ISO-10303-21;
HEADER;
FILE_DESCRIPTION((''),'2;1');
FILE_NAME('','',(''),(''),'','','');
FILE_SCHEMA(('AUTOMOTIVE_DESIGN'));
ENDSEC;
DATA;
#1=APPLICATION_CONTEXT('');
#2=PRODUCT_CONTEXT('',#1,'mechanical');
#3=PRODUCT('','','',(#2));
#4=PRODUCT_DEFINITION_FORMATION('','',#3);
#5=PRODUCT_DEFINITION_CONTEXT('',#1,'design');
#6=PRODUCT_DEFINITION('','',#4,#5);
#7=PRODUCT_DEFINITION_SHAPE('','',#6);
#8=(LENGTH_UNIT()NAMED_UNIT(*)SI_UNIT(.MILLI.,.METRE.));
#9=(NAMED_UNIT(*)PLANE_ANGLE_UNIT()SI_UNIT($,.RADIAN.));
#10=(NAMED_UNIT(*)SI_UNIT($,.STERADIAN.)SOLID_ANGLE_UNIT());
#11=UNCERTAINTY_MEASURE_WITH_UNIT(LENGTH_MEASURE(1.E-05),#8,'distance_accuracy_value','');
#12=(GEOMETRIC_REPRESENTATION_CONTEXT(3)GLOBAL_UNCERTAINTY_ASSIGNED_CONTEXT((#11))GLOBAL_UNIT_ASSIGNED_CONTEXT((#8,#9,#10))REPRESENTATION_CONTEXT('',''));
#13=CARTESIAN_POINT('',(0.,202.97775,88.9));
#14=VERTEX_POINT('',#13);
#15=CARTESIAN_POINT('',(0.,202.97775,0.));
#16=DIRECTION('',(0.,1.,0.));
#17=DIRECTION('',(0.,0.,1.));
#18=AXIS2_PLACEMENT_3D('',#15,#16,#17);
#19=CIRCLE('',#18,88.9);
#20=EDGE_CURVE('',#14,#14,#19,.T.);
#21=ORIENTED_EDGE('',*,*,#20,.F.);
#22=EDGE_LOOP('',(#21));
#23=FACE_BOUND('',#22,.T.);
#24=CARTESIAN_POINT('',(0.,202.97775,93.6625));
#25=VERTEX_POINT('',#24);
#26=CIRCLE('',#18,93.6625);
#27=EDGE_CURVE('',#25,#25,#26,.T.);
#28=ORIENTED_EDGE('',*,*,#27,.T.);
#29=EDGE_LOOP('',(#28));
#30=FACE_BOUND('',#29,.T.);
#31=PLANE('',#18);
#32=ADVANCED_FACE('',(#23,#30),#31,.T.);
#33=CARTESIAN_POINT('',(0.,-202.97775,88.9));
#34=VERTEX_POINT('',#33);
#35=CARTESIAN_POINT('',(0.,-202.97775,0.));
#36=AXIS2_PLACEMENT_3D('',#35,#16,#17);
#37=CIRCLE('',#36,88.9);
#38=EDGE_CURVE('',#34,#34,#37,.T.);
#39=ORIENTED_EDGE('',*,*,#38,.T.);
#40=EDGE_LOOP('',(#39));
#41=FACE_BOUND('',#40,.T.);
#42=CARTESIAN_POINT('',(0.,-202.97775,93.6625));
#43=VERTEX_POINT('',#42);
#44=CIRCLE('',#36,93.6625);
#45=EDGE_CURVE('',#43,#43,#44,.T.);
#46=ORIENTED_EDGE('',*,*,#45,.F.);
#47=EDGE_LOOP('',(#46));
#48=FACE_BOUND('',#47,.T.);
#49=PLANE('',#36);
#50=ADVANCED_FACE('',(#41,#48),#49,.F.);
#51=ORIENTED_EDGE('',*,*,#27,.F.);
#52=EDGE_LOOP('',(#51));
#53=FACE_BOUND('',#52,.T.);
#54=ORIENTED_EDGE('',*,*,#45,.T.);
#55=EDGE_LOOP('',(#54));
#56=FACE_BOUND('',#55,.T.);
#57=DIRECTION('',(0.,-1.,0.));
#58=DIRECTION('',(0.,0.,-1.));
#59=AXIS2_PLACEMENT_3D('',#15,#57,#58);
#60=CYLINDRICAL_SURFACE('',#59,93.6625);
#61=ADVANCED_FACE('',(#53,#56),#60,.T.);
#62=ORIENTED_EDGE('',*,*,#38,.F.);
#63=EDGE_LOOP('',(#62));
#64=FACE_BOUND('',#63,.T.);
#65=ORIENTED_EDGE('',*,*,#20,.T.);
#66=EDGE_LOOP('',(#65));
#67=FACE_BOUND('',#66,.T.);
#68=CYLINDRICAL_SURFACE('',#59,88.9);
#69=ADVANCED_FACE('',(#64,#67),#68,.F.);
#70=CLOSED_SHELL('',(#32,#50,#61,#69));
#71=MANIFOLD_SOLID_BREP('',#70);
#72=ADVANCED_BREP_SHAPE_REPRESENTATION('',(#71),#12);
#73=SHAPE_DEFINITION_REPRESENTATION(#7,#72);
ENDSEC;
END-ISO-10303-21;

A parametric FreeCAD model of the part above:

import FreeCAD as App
import Part
import Sketcher

V = App.Vector
Q = App.Units.Quantity

doc = App.newDocument("Part")
params = doc.addObject("Spreadsheet::Sheet", "Params")
for row, (alias, value) in enumerate([
    ("sketch1_diameter", "7 in"),
    ("sketch1_diameter2", "7.375 in"),
    ("pad1_length", "15.9825 in"),
], start=1):
    params.set(f"A{row}", alias)
    params.set(f"B{row}", "=" + value)
    params.setAlias(f"B{row}", alias)

body = doc.addObject("PartDesign::Body", "Body")

# Sketch on XZ plane
sketch1 = doc.addObject("Sketcher::SketchObject", "Sketch")
body.addObject(sketch1)
sketch1.AttachmentSupport = (doc.XZ_Plane, [""])
sketch1.MapMode = "FlatFace"
sketch1.addGeometry([
    Part.Circle(V(0, 0, 0), V(0, 0, 1), 94),
    Part.Circle(V(0, 0, 0), V(0, 0, 1), 89),
], False)
sketch1.addConstraint([
    Sketcher.Constraint("Coincident", 0, 3, -1, 1),
    Sketcher.Constraint("Coincident", 1, 3, -1, 1),
    Sketcher.Constraint("Diameter", 1, Q("7 in")),
    Sketcher.Constraint("Diameter", 0, Q("7.375 in")),
])
sketch1.setExpression("Constraints[2]", "Params.sketch1_diameter")
sketch1.setExpression("Constraints[3]", "Params.sketch1_diameter2")
pad1 = doc.addObject("PartDesign::Pad", "Pad")
body.addObject(pad1)
pad1.Profile = sketch1
pad1.setExpression("Length", "Params.pad1_length")
pad1.Midplane = True

doc.recompute()
